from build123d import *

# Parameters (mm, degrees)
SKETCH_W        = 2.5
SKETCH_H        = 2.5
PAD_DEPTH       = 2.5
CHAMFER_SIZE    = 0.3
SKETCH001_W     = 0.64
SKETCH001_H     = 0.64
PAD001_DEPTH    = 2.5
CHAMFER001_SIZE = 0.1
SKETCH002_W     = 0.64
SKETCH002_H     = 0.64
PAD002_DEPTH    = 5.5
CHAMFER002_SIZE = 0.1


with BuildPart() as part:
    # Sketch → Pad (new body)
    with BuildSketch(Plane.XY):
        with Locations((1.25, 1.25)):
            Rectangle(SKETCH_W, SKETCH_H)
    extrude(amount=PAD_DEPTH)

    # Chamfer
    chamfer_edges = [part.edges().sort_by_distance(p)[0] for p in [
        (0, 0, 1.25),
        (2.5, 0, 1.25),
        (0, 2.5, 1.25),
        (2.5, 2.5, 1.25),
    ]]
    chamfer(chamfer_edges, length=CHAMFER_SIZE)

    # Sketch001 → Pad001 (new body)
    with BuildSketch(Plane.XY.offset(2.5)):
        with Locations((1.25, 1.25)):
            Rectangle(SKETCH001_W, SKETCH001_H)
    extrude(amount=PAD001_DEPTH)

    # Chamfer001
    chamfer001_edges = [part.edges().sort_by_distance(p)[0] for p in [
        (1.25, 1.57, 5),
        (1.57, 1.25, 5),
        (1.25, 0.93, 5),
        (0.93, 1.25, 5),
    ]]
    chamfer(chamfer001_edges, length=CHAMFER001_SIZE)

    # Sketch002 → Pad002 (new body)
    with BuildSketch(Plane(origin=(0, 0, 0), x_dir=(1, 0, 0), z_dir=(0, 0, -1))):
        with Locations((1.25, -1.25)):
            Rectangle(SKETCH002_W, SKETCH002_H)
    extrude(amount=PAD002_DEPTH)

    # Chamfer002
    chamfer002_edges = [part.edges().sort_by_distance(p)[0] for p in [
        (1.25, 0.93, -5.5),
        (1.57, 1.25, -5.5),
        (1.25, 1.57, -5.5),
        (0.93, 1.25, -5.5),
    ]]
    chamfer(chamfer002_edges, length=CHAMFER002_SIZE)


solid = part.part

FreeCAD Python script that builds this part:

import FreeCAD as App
import Part
import Sketcher
Q = App.Units.Quantity


def edges_at(feature, points):
    """Names of the edges that pass closest to the given points."""
    edges = feature.Shape.Edges
    near = lambda p: min(range(len(edges)), key=lambda i: edges[i].distToShape(Part.Vertex(*p))[0])
    return sorted({f"Edge{near(p) + 1}" for p in points})


def add_polygon(sketch, points):
    """Adds a closed chain of lines whose ends are joined by coincident constraints."""
    first, n = sketch.GeometryCount, len(points)
    for a, b in zip(points, points[1:] + points[:1]):
        sketch.addGeometry(Part.LineSegment(App.Vector(*a, 0), App.Vector(*b, 0)), False)
    for i in range(n):
        sketch.addConstraint(Sketcher.Constraint("Coincident", first + i, 2, first + (i + 1) % n, 1))

doc = App.newDocument("Part")
body = doc.addObject("PartDesign::Body", "Body")

# Sketch on XY plane
sketch1 = body.newObject("Sketcher::SketchObject", "Sketch")
sketch1.AttachmentSupport = (doc.getObject("XY_Plane"), [""])
sketch1.MapMode = "FlatFace"
add_polygon(sketch1, [(0, 2.5), (0, 0), (2.5, 0), (2.5, 2.5)])  # lines 0-3
sketch1.addConstraint(Sketcher.Constraint("Vertical", 0))
sketch1.addConstraint(Sketcher.Constraint("Horizontal", 1))
sketch1.addConstraint(Sketcher.Constraint("Vertical", 2))
sketch1.addConstraint(Sketcher.Constraint("Horizontal", 3))
sketch1.addConstraint(Sketcher.Constraint("Coincident", 0, 2, -1, 1))
sketch1.addConstraint(Sketcher.Constraint("Equal", 3, 0))
sketch1.addConstraint(Sketcher.Constraint("DistanceX", 1, 1, 1, 2, Q("2.5 mm")))
pad1 = body.newObject("PartDesign::Pad", "Pad")
pad1.Profile = sketch1
pad1.Length = 2.5
doc.recompute()

chamfer = body.newObject("PartDesign::Chamfer", "Chamfer")
chamfer.Base = (pad1, edges_at(pad1, [
    (0, 0, 1.25),
    (2.5, 0, 1.25),
    (0, 2.5, 1.25),
    (2.5, 2.5, 1.25),
]))
chamfer.Size = 0.3

# Sketch on XY plane
sketch2 = body.newObject("Sketcher::SketchObject", "Sketch001")
sketch2.AttachmentSupport = (doc.getObject("XY_Plane"), [""])
sketch2.MapMode = "FlatFace"
sketch2.AttachmentOffset = App.Placement(App.Vector(0, 0, 2.5), App.Rotation())
add_polygon(sketch2, [(0.9, 1.6), (0.9, 0.9), (1.6, 0.9), (1.6, 1.6)])  # lines 0-3
sketch2.addConstraint(Sketcher.Constraint("Vertical", 0))
sketch2.addConstraint(Sketcher.Constraint("Horizontal", 1))
sketch2.addConstraint(Sketcher.Constraint("Vertical", 2))
sketch2.addConstraint(Sketcher.Constraint("Horizontal", 3))
sketch2.addConstraint(Sketcher.Constraint("Equal", 3, 0))
sketch2.addConstraint(Sketcher.Constraint("DistanceX", 1, 1, 1, 2, Q("0.64 mm")))
sketch2.addConstraint(Sketcher.Constraint("DistanceX", -1, 1, 0, 2, Q("0.93 mm")))
sketch2.addConstraint(Sketcher.Constraint("DistanceY", -1, 1, 0, 2, Q("0.93 mm")))
pad2 = body.newObject("PartDesign::Pad", "Pad001")
pad2.Profile = sketch2
pad2.Length = 2.5
doc.recompute()

chamfer2 = body.newObject("PartDesign::Chamfer", "Chamfer001")
chamfer2.Base = (pad2, edges_at(pad2, [
    (1.25, 1.57, 5),
    (1.57, 1.25, 5),
    (1.25, 0.93, 5),
    (0.93, 1.25, 5),
]))
chamfer2.Size = 0.1

# Sketch on XY plane
sketch3 = body.newObject("Sketcher::SketchObject", "Sketch002")
sketch3.AttachmentSupport = (doc.getObject("XY_Plane"), [""])
sketch3.MapMode = "FlatFace"
add_polygon(sketch3, [(0.9, 0.9), (0.9, 1.6), (1.6, 1.6), (1.6, 0.9)])  # lines 0-3
sketch3.addConstraint(Sketcher.Constraint("Vertical", 0))
sketch3.addConstraint(Sketcher.Constraint("Horizontal", 1))
sketch3.addConstraint(Sketcher.Constraint("Vertical", 2))
sketch3.addConstraint(Sketcher.Constraint("Horizontal", 3))
sketch3.addConstraint(Sketcher.Constraint("Equal", 3, 0))
sketch3.addConstraint(Sketcher.Constraint("DistanceX", 1, 1, 1, 2, Q("0.64 mm")))
sketch3.addConstraint(Sketcher.Constraint("DistanceX", -1, 1, 0, 2, Q("0.93 mm")))
sketch3.addConstraint(Sketcher.Constraint("DistanceY", -1, 1, 0, 2, Q("1.57 mm")))
pad3 = body.newObject("PartDesign::Pad", "Pad002")
pad3.Profile = sketch3
pad3.Length = 5.5
pad3.Reversed = True
doc.recompute()

chamfer3 = body.newObject("PartDesign::Chamfer", "Chamfer002")
chamfer3.Base = (pad3, edges_at(pad3, [
    (1.25, 0.93, -5.5),
    (1.57, 1.25, -5.5),
    (1.25, 1.57, -5.5),
    (0.93, 1.25, -5.5),
]))
chamfer3.Size = 0.1

doc.recompute()
